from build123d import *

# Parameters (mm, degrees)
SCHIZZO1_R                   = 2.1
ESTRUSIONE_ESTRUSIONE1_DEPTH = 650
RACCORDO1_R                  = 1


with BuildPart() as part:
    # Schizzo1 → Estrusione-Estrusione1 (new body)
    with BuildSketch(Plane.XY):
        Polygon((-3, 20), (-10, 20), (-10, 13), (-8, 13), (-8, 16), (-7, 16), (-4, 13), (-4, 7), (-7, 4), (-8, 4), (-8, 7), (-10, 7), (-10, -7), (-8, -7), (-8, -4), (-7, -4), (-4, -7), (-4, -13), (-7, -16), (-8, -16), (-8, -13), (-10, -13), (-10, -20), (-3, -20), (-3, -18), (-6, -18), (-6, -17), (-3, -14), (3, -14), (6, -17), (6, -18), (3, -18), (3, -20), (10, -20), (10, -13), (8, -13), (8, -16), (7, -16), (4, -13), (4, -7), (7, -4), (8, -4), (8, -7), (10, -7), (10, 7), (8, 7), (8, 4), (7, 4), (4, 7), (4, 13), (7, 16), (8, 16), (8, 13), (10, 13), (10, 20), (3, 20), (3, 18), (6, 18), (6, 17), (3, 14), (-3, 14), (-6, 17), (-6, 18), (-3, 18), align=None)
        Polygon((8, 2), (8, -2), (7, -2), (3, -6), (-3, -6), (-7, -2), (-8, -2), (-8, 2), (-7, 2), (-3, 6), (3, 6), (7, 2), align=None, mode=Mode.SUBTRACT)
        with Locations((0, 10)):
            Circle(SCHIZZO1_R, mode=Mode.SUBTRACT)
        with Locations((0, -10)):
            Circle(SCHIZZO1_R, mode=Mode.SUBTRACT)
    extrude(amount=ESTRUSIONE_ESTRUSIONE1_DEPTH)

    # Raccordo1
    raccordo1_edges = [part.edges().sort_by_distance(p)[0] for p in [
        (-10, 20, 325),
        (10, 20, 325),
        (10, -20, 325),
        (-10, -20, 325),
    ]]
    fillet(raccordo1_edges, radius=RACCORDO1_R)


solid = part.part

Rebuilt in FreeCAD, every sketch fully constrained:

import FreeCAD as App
import Part
import Sketcher
from FreeCAD import Vector


def edges_at(feature, points):
    """Names of the edges that pass closest to the given points."""
    edges = feature.Shape.Edges
    near = lambda p: min(range(len(edges)), key=lambda i: edges[i].distToShape(Part.Vertex(*p))[0])
    return sorted({f"Edge{near(p) + 1}" for p in points})


def add_polygon(sketch, points):
    """Adds a closed chain of lines whose ends are joined by coincident constraints."""
    first, n = sketch.GeometryCount, len(points)
    for a, b in zip(points, points[1:] + points[:1]):
        sketch.addGeometry(Part.LineSegment(App.Vector(*a, 0), App.Vector(*b, 0)), False)
    for i in range(n):
        sketch.addConstraint(Sketcher.Constraint("Coincident", first + i, 2, first + (i + 1) % n, 1))

doc = App.newDocument("Part")
body = doc.addObject("PartDesign::Body", "Body")

# Sketch on XY plane
sketch1 = body.newObject("Sketcher::SketchObject", "Sketch")
sketch1.AttachmentSupport = (doc.getObject("XY_Plane"), [""])
sketch1.MapMode = "FlatFace"
add_polygon(sketch1, [(-3, 20), (-10, 20), (-10, 13), (-8, 13), (-8, 16), (-7, 16), (-4, 13), (-4, 7), (-7, 4), (-8, 4), (-8, 7), (-10, 7), (-10, -7), (-8, -7), (-8, -4), (-7, -4), (-4, -7), (-4, -13), (-7, -16), (-8, -16), (-8, -13), (-10, -13), (-10, -20), (-3, -20), (-3, -18), (-6, -18), (-6, -17), (-3, -14), (3, -14), (6, -17), (6, -18), (3, -18), (3, -20), (10, -20), (10, -13), (8, -13), (8, -16), (7, -16), (4, -13), (4, -7), (7, -4), (8, -4), (8, -7), (10, -7), (10, 7), (8, 7), (8, 4), (7, 4), (4, 7), (4, 13), (7, 16), (8, 16), (8, 13), (10, 13), (10, 20), (3, 20), (3, 18), (6, 18), (6, 17), (3, 14), (-3, 14), (-6, 17), (-6, 18), (-3, 18)])  # lines 0-63
sketch1.addGeometry(Part.Circle(Vector(0, -10, 0), Vector(0, 0, 1), 2.1), False)  # 64
add_polygon(sketch1, [(7, 2), (8, 2), (8, -2), (7, -2), (3, -6), (-3, -6), (-7, -2), (-8, -2), (-8, 2), (-7, 2), (-3, 6), (3, 6)])  # lines 65-76
sketch1.addGeometry(Part.Circle(Vector(0, 10, 0), Vector(0, 0, 1), 2.1), False)  # 77
sketch1.addConstraint(Sketcher.Constraint("Horizontal", 0))
sketch1.addConstraint(Sketcher.Constraint("Vertical", 1))
sketch1.addConstraint(Sketcher.Constraint("Horizontal", 2))
sketch1.addConstraint(Sketcher.Constraint("Vertical", 3))
sketch1.addConstraint(Sketcher.Constraint("Horizontal", 4))
sketch1.addConstraint(Sketcher.Constraint("Vertical", 6))
sketch1.addConstraint(Sketcher.Constraint("Horizontal", 8))
sketch1.addConstraint(Sketcher.Constraint("Vertical", 9))
sketch1.addConstraint(Sketcher.Constraint("Horizontal", 10))
sketch1.addConstraint(Sketcher.Constraint("Vertical", 11))
sketch1.addConstraint(Sketcher.Constraint("Horizontal", 12))
sketch1.addConstraint(Sketcher.Constraint("Vertical", 13))
sketch1.addConstraint(Sketcher.Constraint("Horizontal", 14))
sketch1.addConstraint(Sketcher.Constraint("Vertical", 16))
sketch1.addConstraint(Sketcher.Constraint("Horizontal", 18))
sketch1.addConstraint(Sketcher.Constraint("Vertical", 19))
sketch1.addConstraint(Sketcher.Constraint("Horizontal", 20))
sketch1.addConstraint(Sketcher.Constraint("Vertical", 21))
sketch1.addConstraint(Sketcher.Constraint("Horizontal", 22))
sketch1.addConstraint(Sketcher.Constraint("Vertical", 23))
sketch1.addConstraint(Sketcher.Constraint("Horizontal", 24))
sketch1.addConstraint(Sketcher.Constraint("Vertical", 25))
sketch1.addConstraint(Sketcher.Constraint("Horizontal", 27))
sketch1.addConstraint(Sketcher.Constraint("Vertical", 29))
sketch1.addConstraint(Sketcher.Constraint("Horizontal", 30))
sketch1.addConstraint(Sketcher.Constraint("Vertical", 31))
sketch1.addConstraint(Sketcher.Constraint("Horizontal", 32))
sketch1.addConstraint(Sketcher.Constraint("Vertical", 33))
sketch1.addConstraint(Sketcher.Constraint("Horizontal", 34))
sketch1.addConstraint(Sketcher.Constraint("Vertical", 35))
sketch1.addConstraint(Sketcher.Constraint("Horizontal", 36))
sketch1.addConstraint(Sketcher.Constraint("Vertical", 38))
sketch1.addConstraint(Sketcher.Constraint("Horizontal", 40))
sketch1.addConstraint(Sketcher.Constraint("Vertical", 41))
sketch1.addConstraint(Sketcher.Constraint("Horizontal", 42))
sketch1.addConstraint(Sketcher.Constraint("Vertical", 43))
sketch1.addConstraint(Sketcher.Constraint("Horizontal", 44))
sketch1.addConstraint(Sketcher.Constraint("Vertical", 45))
sketch1.addConstraint(Sketcher.Constraint("Horizontal", 46))
sketch1.addConstraint(Sketcher.Constraint("Vertical", 48))
sketch1.addConstraint(Sketcher.Constraint("Horizontal", 50))
sketch1.addConstraint(Sketcher.Constraint("Vertical", 51))
sketch1.addConstraint(Sketcher.Constraint("Horizontal", 52))
sketch1.addConstraint(Sketcher.Constraint("Vertical", 53))
sketch1.addConstraint(Sketcher.Constraint("Horizontal", 54))
sketch1.addConstraint(Sketcher.Constraint("Vertical", 55))
sketch1.addConstraint(Sketcher.Constraint("Horizontal", 56))
sketch1.addConstraint(Sketcher.Constraint("Vertical", 57))
sketch1.addConstraint(Sketcher.Constraint("Horizontal", 59))
sketch1.addConstraint(Sketcher.Constraint("Vertical", 61))
sketch1.addConstraint(Sketcher.Constraint("Horizontal", 62))
sketch1.addConstraint(Sketcher.Constraint("Vertical", 63))
sketch1.addConstraint(Sketcher.Constraint("Horizontal", 65))
sketch1.addConstraint(Sketcher.Constraint("Vertical", 66))
sketch1.addConstraint(Sketcher.Constraint("Horizontal", 67))
sketch1.addConstraint(Sketcher.Constraint("Horizontal", 69))
sketch1.addConstraint(Sketcher.Constraint("Horizontal", 71))
sketch1.addConstraint(Sketcher.Constraint("Vertical", 72))
sketch1.addConstraint(Sketcher.Constraint("Horizontal", 73))
sketch1.addConstraint(Sketcher.Constraint("Horizontal", 75))
sketch1.addConstraint(Sketcher.Constraint("Equal", 64, 77))
sketch1.addConstraint(Sketcher.Constraint("Symmetric", 64, 3, 77, 3, -1, 1))
sketch1.addConstraint(Sketcher.Constraint("Symmetric", 0, 2, 32, 2, -1, 1))
sketch1.addConstraint(Sketcher.Constraint("Symmetric", 2, 2, 34, 2, -1, 1))
sketch1.addConstraint(Sketcher.Constraint("Symmetric", 4, 2, 36, 2, -1, 1))
sketch1.addConstraint(Sketcher.Constraint("Symmetric", 5, 2, 37, 2, -1, 1))
sketch1.addConstraint(Sketcher.Constraint("Symmetric", 7, 2, 39, 2, -1, 1))
sketch1.addConstraint(Sketcher.Constraint("Symmetric", 9, 2, 41, 2, -1, 1))
sketch1.addConstraint(Sketcher.Constraint("Symmetric", 11, 2, 43, 2, -1, 1))
sketch1.addConstraint(Sketcher.Constraint("Symmetric", 13, 2, 45, 2, -1, 1))
sketch1.addConstraint(Sketcher.Constraint("Symmetric", 15, 2, 47, 2, -1, 1))
sketch1.addConstraint(Sketcher.Constraint("Symmetric", 17, 2, 49, 2, -1, 1))
sketch1.addConstraint(Sketcher.Constraint("Symmetric", 19, 2, 51, 2, -1, 1))
sketch1.addConstraint(Sketcher.Constraint("Symmetric", 21, 2, 53, 2, -1, 1))
sketch1.addConstraint(Sketcher.Constraint("Symmetric", 23, 2, 55, 2, -1, 1))
sketch1.addConstraint(Sketcher.Constraint("Symmetric", 25, 2, 57, 2, -1, 1))
sketch1.addConstraint(Sketcher.Constraint("Symmetric", 26, 2, 58, 2, -1, 1))
sketch1.addConstraint(Sketcher.Constraint("Symmetric", 28, 2, 60, 2, -1, 1))
sketch1.addConstraint(Sketcher.Constraint("Symmetric", 30, 2, 62, 2, -1, 1))
sketch1.addConstraint(Sketcher.Constraint("Symmetric", 65, 2, 71, 2, -1, 1))
sketch1.addConstraint(Sketcher.Constraint("Symmetric", 67, 2, 73, 2, -1, 1))
sketch1.addConstraint(Sketcher.Constraint("Symmetric", 68, 2, 74, 2, -1, 1))
sketch1.addConstraint(Sketcher.Constraint("Symmetric", 25, 2, 28, 2, -2))
sketch1.addConstraint(Sketcher.Constraint("Symmetric", 23, 2, 30, 2, -2))
sketch1.addConstraint(Sketcher.Constraint("Symmetric", 21, 2, 32, 2, -2))
sketch1.addConstraint(Sketcher.Constraint("Symmetric", 19, 2, 34, 2, -2))
sketch1.addConstraint(Sketcher.Constraint("Symmetric", 17, 2, 36, 2, -2))
sketch1.addConstraint(Sketcher.Constraint("Symmetric", 16, 2, 37, 2, -2))
sketch1.addConstraint(Sketcher.Constraint("Symmetric", 14, 2, 39, 2, -2))
sketch1.addConstraint(Sketcher.Constraint("Symmetric", 12, 2, 41, 2, -2))
sketch1.addConstraint(Sketcher.Constraint("Symmetric", 67, 2, 70, 2, -2))
sketch1.addConstraint(Sketcher.Constraint("PointOnObject", 64, 3, -2))
sketch1.addConstraint(Sketcher.Constraint("Perpendicular", 5, 7))
sketch1.addConstraint(Sketcher.Constraint("Perpendicular", 7, 15))
sketch1.addConstraint(Sketcher.Constraint("Perpendicular", 15, 17))
sketch1.addConstraint(Sketcher.Constraint("Parallel", 17, 26))
sketch1.addConstraint(Sketcher.Constraint("Perpendicular", 26, 28))
sketch1.addConstraint(Sketcher.Constraint("Perpendicular", 37, 39))
sketch1.addConstraint(Sketcher.Constraint("Perpendicular", 39, 47))
sketch1.addConstraint(Sketcher.Constraint("Perpendicular", 47, 49))
sketch1.addConstraint(Sketcher.Constraint("Perpendicular", 58, 60))
sketch1.addConstraint(Sketcher.Constraint("Perpendicular", 60, 68))
sketch1.addConstraint(Sketcher.Constraint("Perpendicular", 68, 70))
sketch1.addConstraint(Sketcher.Constraint("Perpendicular", 74, 76))
sketch1.addConstraint(Sketcher.Constraint("Horizontal", 2, 2, 5, 2))
sketch1.addConstraint(Sketcher.Constraint("Horizontal", 6, 2, 9, 2))
sketch1.addConstraint(Sketcher.Constraint("Vertical", 4, 2, 7, 2))
sketch1.addConstraint(Sketcher.Constraint("Vertical", 3, 2, 8, 2))
sketch1.addConstraint(Sketcher.Constraint("Vertical", 1, 2, 10, 2))
sketch1.addConstraint(Sketcher.Constraint("Vertical", 23, 2, 26, 2))
sketch1.addConstraint(Sketcher.Constraint("Vertical", 51, 2, 65, 2))
sketch1.addConstraint(Sketcher.Constraint("Vertical", 49, 2, 67, 2))
sketch1.addConstraint(Sketcher.Constraint("Vertical", 58, 2, 68, 2))
sketch1.addConstraint(Sketcher.Constraint("Vertical", 68, 2, 75, 2))
sketch1.addConstraint(Sketcher.Constraint("Equal", 54, 1))
sketch1.addConstraint(Sketcher.Constraint("Equal", 62, 3))
sketch1.addConstraint(Sketcher.Constraint("Equal", 75, 6))
sketch1.addConstraint(Sketcher.Constraint("Equal", 52, 23))
sketch1.addConstraint(Sketcher.Constraint("Equal", 73, 25))
sketch1.addConstraint(Sketcher.Constraint("Diameter", 64, 4.2))
sketch1.addConstraint(Sketcher.Constraint("DistanceX", 0, 2, 0, 1, 7.0))
sketch1.addConstraint(Sketcher.Constraint("DistanceX", 2, 1, 2, 2, 2.0))
sketch1.addConstraint(Sketcher.Constraint("DistanceX", 4, 1, 4, 2, 1.0))
sketch1.addConstraint(Sketcher.Constraint("DistanceX", 24, 2, 24, 1, 3.0))
sketch1.addConstraint(Sketcher.Constraint("DistanceX", 27, 1, 27, 2, 6.0))
sketch1.addConstraint(Sketcher.Constraint("DistanceY", 11, 2, 11, 1, 14.0))
sketch1.addConstraint(Sketcher.Constraint("DistanceY", 66, 2, 66, 1, 4.0))
sketch1.addConstraint(Sketcher.Constraint("DistanceY", 64, 3, -1, 1, 10.0))
pad1 = body.newObject("PartDesign::Pad", "Pad")
pad1.Profile = sketch1
pad1.Length = 650
doc.recompute()

fillet = body.newObject("PartDesign::Fillet", "Fillet")
fillet.Base = (pad1, edges_at(pad1, [
    (-10, 20, 325),
    (10, 20, 325),
    (10, -20, 325),
    (-10, -20, 325),
]))
fillet.Radius = 1

doc.recompute()
